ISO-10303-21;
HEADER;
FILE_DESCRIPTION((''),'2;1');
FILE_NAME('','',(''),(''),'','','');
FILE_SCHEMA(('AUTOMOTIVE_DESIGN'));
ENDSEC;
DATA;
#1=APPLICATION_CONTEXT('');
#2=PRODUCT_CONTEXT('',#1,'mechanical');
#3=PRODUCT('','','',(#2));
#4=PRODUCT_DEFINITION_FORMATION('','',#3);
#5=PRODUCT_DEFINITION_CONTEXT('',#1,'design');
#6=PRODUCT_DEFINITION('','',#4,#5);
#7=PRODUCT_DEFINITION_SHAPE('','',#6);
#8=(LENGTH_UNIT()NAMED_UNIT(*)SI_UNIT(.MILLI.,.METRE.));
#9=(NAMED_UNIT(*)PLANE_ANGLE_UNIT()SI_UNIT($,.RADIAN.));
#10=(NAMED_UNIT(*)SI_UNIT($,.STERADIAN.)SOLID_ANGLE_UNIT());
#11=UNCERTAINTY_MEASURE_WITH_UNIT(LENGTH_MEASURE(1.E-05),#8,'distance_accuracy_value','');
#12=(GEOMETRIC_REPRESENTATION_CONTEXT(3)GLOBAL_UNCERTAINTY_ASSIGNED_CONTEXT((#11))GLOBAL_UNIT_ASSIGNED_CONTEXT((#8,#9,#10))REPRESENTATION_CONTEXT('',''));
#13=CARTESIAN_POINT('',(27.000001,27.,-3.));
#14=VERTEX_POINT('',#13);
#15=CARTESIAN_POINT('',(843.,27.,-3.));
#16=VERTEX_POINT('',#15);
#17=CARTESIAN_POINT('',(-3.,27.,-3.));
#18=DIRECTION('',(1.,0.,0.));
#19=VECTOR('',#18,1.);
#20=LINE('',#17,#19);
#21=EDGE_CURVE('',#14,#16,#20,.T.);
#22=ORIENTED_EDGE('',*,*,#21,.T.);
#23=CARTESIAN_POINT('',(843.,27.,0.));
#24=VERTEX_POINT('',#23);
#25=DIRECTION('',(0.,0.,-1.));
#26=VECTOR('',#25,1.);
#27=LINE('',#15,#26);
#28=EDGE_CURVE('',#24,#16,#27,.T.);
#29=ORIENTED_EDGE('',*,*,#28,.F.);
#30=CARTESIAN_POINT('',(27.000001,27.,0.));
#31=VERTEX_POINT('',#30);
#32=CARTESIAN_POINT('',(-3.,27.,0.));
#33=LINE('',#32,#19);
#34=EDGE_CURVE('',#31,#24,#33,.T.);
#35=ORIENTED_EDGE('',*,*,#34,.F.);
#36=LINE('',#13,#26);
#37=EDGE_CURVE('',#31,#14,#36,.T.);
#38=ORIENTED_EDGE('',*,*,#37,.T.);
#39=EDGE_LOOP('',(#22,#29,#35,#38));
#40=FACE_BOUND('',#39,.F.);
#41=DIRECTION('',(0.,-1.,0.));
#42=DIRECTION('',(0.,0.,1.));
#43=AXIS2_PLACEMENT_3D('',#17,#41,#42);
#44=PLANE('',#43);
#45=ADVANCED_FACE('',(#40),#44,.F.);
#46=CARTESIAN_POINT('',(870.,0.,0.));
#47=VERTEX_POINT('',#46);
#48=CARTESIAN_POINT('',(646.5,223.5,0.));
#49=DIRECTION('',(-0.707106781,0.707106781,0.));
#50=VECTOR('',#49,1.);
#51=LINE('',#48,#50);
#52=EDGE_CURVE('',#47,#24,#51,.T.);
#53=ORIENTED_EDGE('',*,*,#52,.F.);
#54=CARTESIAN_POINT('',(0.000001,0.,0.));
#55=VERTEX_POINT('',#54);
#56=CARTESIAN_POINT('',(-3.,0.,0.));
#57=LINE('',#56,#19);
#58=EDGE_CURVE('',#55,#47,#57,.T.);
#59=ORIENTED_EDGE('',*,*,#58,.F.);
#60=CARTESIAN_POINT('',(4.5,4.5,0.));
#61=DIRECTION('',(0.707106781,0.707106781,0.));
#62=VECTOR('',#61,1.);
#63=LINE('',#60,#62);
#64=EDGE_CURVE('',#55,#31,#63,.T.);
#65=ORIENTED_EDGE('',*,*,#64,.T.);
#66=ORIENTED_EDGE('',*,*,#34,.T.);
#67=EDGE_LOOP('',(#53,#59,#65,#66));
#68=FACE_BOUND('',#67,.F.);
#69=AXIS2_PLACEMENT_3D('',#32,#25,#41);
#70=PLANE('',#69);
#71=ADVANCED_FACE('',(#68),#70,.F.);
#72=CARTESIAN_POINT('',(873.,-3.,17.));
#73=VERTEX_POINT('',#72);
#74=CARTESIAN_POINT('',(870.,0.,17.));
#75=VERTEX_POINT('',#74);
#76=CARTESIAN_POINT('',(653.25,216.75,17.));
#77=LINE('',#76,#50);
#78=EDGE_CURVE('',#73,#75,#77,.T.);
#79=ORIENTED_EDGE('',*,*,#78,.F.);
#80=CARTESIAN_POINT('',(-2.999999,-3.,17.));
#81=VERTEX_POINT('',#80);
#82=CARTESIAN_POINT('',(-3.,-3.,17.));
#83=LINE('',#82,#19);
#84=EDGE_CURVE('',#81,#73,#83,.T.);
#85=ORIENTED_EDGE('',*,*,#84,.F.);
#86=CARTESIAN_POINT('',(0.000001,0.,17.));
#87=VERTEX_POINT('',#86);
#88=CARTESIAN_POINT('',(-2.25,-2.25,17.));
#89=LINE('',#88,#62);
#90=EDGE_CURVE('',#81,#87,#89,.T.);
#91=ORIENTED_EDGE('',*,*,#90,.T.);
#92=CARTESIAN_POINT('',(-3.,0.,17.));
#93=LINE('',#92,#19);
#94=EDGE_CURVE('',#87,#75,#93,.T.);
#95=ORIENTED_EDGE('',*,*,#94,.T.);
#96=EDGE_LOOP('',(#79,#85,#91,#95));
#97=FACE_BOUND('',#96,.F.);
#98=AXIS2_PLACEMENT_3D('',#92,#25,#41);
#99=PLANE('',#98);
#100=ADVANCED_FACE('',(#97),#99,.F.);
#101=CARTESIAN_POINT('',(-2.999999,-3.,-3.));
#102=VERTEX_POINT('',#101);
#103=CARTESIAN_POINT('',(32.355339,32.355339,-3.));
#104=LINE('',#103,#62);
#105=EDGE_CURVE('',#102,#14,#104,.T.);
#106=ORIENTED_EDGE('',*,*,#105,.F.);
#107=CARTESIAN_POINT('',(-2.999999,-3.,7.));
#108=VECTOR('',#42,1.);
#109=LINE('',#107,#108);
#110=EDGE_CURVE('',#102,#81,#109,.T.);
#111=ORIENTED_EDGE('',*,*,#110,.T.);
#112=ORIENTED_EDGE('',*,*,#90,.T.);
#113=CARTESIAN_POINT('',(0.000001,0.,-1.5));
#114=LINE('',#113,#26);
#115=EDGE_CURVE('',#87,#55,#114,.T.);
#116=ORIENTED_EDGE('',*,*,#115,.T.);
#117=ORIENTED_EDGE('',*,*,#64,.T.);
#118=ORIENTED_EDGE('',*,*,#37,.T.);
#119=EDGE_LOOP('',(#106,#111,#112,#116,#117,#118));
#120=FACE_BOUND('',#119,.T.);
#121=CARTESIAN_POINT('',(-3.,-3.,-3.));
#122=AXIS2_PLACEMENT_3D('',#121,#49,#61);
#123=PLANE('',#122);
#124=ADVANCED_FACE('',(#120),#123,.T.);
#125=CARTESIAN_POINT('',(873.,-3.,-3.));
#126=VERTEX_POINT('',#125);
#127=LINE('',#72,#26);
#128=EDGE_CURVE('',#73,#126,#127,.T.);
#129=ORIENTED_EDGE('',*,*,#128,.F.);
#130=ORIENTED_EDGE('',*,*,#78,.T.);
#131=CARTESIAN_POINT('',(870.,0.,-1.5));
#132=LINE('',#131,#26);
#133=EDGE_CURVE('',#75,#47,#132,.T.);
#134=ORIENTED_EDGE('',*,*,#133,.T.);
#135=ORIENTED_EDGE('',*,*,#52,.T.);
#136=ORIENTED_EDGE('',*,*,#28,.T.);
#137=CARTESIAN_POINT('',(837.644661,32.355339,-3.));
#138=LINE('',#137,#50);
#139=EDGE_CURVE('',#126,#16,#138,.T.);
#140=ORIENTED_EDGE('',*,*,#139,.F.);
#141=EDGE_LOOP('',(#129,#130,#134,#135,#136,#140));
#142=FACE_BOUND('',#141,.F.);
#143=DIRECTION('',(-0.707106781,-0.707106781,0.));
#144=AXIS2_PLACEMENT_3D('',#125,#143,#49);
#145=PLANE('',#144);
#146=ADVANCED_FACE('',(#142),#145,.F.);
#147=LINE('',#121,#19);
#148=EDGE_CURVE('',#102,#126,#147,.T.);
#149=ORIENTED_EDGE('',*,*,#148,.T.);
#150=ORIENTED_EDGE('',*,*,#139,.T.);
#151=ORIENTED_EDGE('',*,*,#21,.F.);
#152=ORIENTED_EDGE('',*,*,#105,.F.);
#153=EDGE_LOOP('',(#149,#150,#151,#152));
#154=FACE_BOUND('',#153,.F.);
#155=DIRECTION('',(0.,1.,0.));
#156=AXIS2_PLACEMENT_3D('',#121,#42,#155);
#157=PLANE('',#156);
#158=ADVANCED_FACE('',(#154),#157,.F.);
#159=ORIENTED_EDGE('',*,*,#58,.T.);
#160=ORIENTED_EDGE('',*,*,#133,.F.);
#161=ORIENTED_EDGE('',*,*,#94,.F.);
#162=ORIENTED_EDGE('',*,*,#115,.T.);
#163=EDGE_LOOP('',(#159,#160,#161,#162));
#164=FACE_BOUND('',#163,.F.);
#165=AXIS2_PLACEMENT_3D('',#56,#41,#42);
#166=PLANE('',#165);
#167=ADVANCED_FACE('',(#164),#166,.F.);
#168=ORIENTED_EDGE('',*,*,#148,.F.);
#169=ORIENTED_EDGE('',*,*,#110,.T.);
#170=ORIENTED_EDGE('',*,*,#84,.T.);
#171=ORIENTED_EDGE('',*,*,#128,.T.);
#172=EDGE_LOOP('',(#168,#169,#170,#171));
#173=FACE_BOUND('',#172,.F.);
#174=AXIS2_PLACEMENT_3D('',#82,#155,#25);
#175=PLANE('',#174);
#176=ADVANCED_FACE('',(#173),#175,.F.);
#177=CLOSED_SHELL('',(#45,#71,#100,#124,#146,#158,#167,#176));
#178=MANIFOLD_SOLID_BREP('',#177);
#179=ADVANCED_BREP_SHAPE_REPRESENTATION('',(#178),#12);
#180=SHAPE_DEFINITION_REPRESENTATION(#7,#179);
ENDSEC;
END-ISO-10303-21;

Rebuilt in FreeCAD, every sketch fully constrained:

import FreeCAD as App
import Part
import Sketcher
from FreeCAD import Vector
Q = App.Units.Quantity

doc = App.newDocument("Part")
body = doc.addObject("PartDesign::Body", "Body")

sketch1 = body.newObject("Sketcher::SketchObject", "Sketch")
sketch1.AttachmentSupport = (doc.getObject("XY_Plane"), [""])
sketch1.MapMode = "FlatFace"
sketch1.addGeometry(Part.LineSegment(Vector(0, 100, 0), Vector(0, 0, 0)), False)
sketch1.addGeometry(Part.LineSegment(Vector(0, 0, 0), Vector(30, 0, 0)), False)
sketch1.addGeometry(Part.LineSegment(Vector(30, 0, 0), Vector(30, 100, 0)), False)
sketch1.addGeometry(Part.LineSegment(Vector(30, 100, 0), Vector(0, 100, 0)), False)
sketch1.addConstraint(Sketcher.Constraint("Coincident", 0, 2, 1, 1))
sketch1.addConstraint(Sketcher.Constraint("Coincident", 1, 2, 2, 1))
sketch1.addConstraint(Sketcher.Constraint("Coincident", 2, 2, 3, 1))
sketch1.addConstraint(Sketcher.Constraint("Coincident", 3, 2, 0, 1))
sketch1.addConstraint(Sketcher.Constraint("Vertical", 0))
sketch1.addConstraint(Sketcher.Constraint("Horizontal", 1))
sketch1.addConstraint(Sketcher.Constraint("Vertical", 2))
sketch1.addConstraint(Sketcher.Constraint("Horizontal", 3))
sketch1.addConstraint(Sketcher.Constraint("Coincident", 0, 2, -1, 1))
sketch1.addConstraint(Sketcher.Constraint("DistanceX", 1, 1, 1, 2, Q("30 mm")))
sketch1.addConstraint(Sketcher.Constraint("DistanceY", 0, 2, 0, 1, Q("100 mm")))
pad1 = body.newObject("PartDesign::Pad", "Pad")
pad1.Profile = sketch1
pad1.Length = 30
body2 = doc.addObject("PartDesign::Body", "Body001")
doc.recompute()

body.Placement = App.Placement(Vector(873, -3, -3), App.Rotation(Vector(0, 0, 1), 45))
boolean = body2.newObject("PartDesign::Boolean", "Boolean")
boolean.Type = "Fuse"
boolean.addObjects([body])
body3 = doc.addObject("PartDesign::Body", "Body002")

sketch2 = body3.newObject("Sketcher::SketchObject", "Sketch001")
sketch2.AttachmentSupport = (doc.getObject("XY_Plane002"), [""])
sketch2.MapMode = "FlatFace"
sketch2.addGeometry(Part.LineSegment(Vector(0, 100, 0), Vector(0, 0, 0)), False)
sketch2.addGeometry(Part.LineSegment(Vector(0, 0, 0), Vector(30, 0, 0)), False)
sketch2.addGeometry(Part.LineSegment(Vector(30, 0, 0), Vector(30, 100, 0)), False)
sketch2.addGeometry(Part.LineSegment(Vector(30, 100, 0), Vector(0, 100, 0)), False)
sketch2.addConstraint(Sketcher.Constraint("Coincident", 0, 2, 1, 1))
sketch2.addConstraint(Sketcher.Constraint("Coincident", 1, 2, 2, 1))
sketch2.addConstraint(Sketcher.Constraint("Coincident", 2, 2, 3, 1))
sketch2.addConstraint(Sketcher.Constraint("Coincident", 3, 2, 0, 1))
sketch2.addConstraint(Sketcher.Constraint("Vertical", 0))
sketch2.addConstraint(Sketcher.Constraint("Horizontal", 1))
sketch2.addConstraint(Sketcher.Constraint("Vertical", 2))
sketch2.addConstraint(Sketcher.Constraint("Horizontal", 3))
sketch2.addConstraint(Sketcher.Constraint("Coincident", 0, 2, -1, 1))
sketch2.addConstraint(Sketcher.Constraint("DistanceX", 1, 1, 1, 2, Q("30 mm")))
sketch2.addConstraint(Sketcher.Constraint("DistanceY", 0, 2, 0, 1, Q("100 mm")))
pad2 = body3.newObject("PartDesign::Pad", "Pad001")
pad2.Profile = sketch2
pad2.Length = 30
body4 = doc.addObject("PartDesign::Body", "Body003")
doc.recompute()

body3.Placement = App.Placement(Vector(-24.213203, 18.213203, -3), App.Rotation(Vector(0, 0, 1), 315))
boolean2 = body4.newObject("PartDesign::Boolean", "Boolean001")
boolean2.Type = "Fuse"
boolean2.addObjects([body3])
body5 = doc.addObject("PartDesign::Body", "Body004")

sketch3 = body5.newObject("Sketcher::SketchObject", "Sketch002")
sketch3.AttachmentSupport = (doc.getObject("YZ_Plane004"), [""])
sketch3.MapMode = "FlatFace"
sketch3.AttachmentOffset = App.Placement(Vector(0, 0, -3), App.Rotation())
sketch3.addGeometry(Part.LineSegment(Vector(-3, -3, 0), Vector(27, -3, 0)), False)
sketch3.addGeometry(Part.LineSegment(Vector(27, -3, 0), Vector(27, 0, 0)), False)
sketch3.addGeometry(Part.LineSegment(Vector(27, 0, 0), Vector(0, 0, 0)), False)
sketch3.addGeometry(Part.LineSegment(Vector(0, 0, 0), Vector(0, 17, 0)), False)
sketch3.addGeometry(Part.LineSegment(Vector(0, 17, 0), Vector(-3, 17, 0)), False)
sketch3.addGeometry(Part.LineSegment(Vector(-3, 17, 0), Vector(-3, -3, 0)), False)
sketch3.addConstraint(Sketcher.Constraint("Coincident", 0, 2, 1, 1))
sketch3.addConstraint(Sketcher.Constraint("Coincident", 1, 2, 2, 1))
sketch3.addConstraint(Sketcher.Constraint("Coincident", 2, 2, 3, 1))
sketch3.addConstraint(Sketcher.Constraint("Coincident", 3, 2, 4, 1))
sketch3.addConstraint(Sketcher.Constraint("Coincident", 4, 2, 5, 1))
sketch3.addConstraint(Sketcher.Constraint("Coincident", 5, 2, 0, 1))
sketch3.addConstraint(Sketcher.Constraint("Horizontal", 0))
sketch3.addConstraint(Sketcher.Constraint("Vertical", 1))
sketch3.addConstraint(Sketcher.Constraint("Horizontal", 2))
sketch3.addConstraint(Sketcher.Constraint("Vertical", 3))
sketch3.addConstraint(Sketcher.Constraint("Horizontal", 4))
sketch3.addConstraint(Sketcher.Constraint("Vertical", 5))
sketch3.addConstraint(Sketcher.Constraint("Coincident", 2, 2, -1, 1))
sketch3.addConstraint(Sketcher.Constraint("Equal", 4, 1))
sketch3.addConstraint(Sketcher.Constraint("DistanceX", 0, 1, 0, 2, Q("30 mm")))
sketch3.addConstraint(Sketcher.Constraint("DistanceX", 2, 2, 2, 1, Q("27 mm")))
sketch3.addConstraint(Sketcher.Constraint("DistanceY", 3, 1, 3, 2, Q("17 mm")))
pad3 = body5.newObject("PartDesign::Pad", "Pad002")
pad3.Profile = sketch3
pad3.Length = 876
doc.recompute()

boolean3 = body5.newObject("PartDesign::Boolean", "Boolean002")
boolean3.Type = "Cut"
boolean3.addObjects([body4])
doc.recompute()

boolean4 = body5.newObject("PartDesign::Boolean", "Boolean003")
boolean4.Type = "Cut"
boolean4.addObjects([body2])

doc.recompute()
